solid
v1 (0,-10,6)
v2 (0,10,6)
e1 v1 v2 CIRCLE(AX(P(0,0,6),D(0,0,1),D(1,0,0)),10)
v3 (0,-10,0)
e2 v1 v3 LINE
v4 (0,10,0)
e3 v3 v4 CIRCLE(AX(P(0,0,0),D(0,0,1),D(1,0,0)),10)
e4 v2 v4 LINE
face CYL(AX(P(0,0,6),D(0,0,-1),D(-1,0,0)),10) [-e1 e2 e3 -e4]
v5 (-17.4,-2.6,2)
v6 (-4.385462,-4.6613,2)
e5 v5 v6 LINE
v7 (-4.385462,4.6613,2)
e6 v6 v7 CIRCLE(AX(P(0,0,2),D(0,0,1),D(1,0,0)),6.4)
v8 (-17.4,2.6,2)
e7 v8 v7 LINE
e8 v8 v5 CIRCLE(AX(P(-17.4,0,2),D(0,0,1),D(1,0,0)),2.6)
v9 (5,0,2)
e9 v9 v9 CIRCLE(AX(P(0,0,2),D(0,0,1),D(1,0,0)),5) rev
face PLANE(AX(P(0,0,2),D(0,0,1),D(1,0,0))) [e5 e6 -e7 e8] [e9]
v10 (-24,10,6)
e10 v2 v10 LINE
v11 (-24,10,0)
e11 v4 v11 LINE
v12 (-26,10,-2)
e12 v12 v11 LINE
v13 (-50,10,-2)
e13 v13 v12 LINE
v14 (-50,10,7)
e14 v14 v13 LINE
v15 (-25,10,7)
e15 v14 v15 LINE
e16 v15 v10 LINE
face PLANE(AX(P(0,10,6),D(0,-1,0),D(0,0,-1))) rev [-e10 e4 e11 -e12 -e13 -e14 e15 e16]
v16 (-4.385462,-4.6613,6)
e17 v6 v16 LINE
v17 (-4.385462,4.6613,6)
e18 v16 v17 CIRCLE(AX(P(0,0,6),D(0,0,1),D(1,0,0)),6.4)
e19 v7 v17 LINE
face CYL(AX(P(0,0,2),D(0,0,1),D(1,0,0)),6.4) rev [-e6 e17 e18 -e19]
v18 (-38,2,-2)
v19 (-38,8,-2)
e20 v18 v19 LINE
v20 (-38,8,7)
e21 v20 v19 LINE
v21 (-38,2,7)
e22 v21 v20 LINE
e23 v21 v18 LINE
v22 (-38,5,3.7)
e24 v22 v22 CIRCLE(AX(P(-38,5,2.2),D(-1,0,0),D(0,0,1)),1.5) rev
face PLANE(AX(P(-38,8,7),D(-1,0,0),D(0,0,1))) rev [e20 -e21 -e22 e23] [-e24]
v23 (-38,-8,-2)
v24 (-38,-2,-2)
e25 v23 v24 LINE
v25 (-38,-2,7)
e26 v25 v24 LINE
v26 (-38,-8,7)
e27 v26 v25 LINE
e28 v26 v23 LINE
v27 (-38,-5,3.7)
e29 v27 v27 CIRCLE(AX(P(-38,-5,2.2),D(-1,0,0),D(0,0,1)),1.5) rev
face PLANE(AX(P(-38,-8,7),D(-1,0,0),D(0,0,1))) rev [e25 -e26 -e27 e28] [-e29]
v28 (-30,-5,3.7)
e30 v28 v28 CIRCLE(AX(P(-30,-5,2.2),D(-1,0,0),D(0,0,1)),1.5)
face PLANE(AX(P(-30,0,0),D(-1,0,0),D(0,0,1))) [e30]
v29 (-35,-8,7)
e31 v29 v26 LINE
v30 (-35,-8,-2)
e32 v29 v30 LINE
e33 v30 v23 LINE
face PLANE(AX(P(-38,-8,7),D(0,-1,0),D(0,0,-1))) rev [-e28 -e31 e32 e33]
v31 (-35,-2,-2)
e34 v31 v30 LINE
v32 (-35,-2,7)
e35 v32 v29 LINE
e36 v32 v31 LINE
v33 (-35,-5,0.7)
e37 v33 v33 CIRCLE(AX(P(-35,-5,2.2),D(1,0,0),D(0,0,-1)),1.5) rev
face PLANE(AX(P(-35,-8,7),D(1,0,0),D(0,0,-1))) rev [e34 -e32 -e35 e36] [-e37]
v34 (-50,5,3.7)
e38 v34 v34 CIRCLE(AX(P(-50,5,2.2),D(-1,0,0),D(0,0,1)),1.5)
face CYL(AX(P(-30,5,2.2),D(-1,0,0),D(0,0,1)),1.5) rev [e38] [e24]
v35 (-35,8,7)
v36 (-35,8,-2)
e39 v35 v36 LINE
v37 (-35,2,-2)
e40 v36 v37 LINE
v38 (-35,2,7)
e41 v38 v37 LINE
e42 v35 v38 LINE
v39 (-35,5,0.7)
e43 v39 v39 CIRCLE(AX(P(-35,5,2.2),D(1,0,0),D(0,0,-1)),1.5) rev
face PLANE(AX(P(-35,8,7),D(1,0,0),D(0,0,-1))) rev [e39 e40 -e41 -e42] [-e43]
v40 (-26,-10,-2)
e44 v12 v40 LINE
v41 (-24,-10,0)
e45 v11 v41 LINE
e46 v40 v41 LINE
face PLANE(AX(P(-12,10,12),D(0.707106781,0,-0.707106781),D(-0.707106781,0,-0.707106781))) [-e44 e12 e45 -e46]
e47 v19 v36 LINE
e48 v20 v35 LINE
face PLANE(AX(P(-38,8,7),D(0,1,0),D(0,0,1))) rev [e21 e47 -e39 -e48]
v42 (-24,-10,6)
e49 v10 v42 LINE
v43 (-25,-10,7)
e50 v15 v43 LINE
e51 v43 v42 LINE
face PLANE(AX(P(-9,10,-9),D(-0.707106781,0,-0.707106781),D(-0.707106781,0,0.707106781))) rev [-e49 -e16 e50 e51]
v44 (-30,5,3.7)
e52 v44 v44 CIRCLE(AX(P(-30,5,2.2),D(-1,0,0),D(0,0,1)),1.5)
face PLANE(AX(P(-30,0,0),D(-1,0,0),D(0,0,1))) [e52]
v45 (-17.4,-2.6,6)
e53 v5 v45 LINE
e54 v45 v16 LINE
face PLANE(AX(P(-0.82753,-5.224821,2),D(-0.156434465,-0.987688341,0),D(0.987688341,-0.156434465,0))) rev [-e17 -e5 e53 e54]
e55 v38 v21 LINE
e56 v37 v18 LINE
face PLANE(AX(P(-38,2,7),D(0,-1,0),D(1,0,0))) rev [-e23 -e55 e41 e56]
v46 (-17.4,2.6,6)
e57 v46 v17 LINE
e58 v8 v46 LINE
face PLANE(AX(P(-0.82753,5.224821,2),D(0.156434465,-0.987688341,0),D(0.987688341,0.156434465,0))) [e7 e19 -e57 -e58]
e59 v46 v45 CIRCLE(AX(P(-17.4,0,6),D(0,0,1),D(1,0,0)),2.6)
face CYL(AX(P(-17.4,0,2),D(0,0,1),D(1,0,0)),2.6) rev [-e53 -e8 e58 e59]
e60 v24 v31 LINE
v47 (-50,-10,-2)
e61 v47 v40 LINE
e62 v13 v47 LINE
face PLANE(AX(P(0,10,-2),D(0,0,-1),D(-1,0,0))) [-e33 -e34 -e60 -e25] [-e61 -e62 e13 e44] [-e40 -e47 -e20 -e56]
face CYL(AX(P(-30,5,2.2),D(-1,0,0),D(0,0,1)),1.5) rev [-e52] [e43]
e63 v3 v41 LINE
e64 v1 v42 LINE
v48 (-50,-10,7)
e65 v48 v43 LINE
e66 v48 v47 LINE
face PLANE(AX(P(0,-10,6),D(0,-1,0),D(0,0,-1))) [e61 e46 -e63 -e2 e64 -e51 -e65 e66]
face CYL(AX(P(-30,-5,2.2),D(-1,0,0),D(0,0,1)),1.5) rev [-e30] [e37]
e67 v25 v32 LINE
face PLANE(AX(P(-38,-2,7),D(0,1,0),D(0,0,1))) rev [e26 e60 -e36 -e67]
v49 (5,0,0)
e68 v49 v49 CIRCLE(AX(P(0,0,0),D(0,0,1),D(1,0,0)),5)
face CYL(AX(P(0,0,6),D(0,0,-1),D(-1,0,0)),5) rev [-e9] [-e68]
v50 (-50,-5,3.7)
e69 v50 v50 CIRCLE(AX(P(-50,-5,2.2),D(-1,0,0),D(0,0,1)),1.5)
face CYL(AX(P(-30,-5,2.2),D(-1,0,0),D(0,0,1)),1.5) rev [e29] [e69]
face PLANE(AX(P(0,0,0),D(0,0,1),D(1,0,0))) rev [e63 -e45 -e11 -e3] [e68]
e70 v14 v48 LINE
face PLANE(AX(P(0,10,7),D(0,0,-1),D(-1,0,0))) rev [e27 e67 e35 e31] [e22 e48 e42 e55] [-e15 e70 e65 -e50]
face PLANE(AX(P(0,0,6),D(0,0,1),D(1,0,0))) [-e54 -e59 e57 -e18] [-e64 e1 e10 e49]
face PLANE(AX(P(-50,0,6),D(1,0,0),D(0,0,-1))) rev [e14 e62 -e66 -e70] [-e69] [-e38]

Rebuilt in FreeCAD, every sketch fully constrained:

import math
import FreeCAD as App
import Part
import Sketcher

V = App.Vector
Q = App.Units.Quantity


def add_polygon(sketch, points):
    """Adds a closed chain of lines whose ends are joined by coincident constraints."""
    first, n = sketch.GeometryCount, len(points)
    for a, b in zip(points, points[1:] + points[:1]):
        sketch.addGeometry(Part.LineSegment(App.Vector(*a, 0), App.Vector(*b, 0)), False)
    for i in range(n):
        sketch.addConstraint(Sketcher.Constraint("Coincident", first + i, 2, first + (i + 1) % n, 1))

doc = App.newDocument("Part")
body = doc.addObject("PartDesign::Body", "Body")

# Sketch on XY plane
sketch1 = body.newObject("Sketcher::SketchObject", "Sketch")
sketch1.AttachmentSupport = (doc.getObject("XY_Plane"), [""])
sketch1.MapMode = "FlatFace"
sketch1.addGeometry(Part.LineSegment(V(-50, -10, 0), V(0, -10, 0)), False)
sketch1.addGeometry(Part.ArcOfCircle(Part.Circle(V(0, 0, 0), V(0, 0, 1), 10), math.radians(-90), math.radians(0)), False)
sketch1.addGeometry(Part.ArcOfCircle(Part.Circle(V(0, 0, 0), V(0, 0, 1), 10), math.radians(0), math.radians(90)), False)
sketch1.addGeometry(Part.LineSegment(V(0, 10, 0), V(-50, 10, 0)), False)
sketch1.addGeometry(Part.LineSegment(V(-50, 10, 0), V(-50, -10, 0)), False)
sketch1.addGeometry(Part.ArcOfCircle(Part.Circle(V(0, 0, 0), V(0, 0, 1), 5), math.radians(90), math.radians(180)), False)
sketch1.addGeometry(Part.ArcOfCircle(Part.Circle(V(0, 0, 0), V(0, 0, 1), 5), math.radians(0), math.radians(90)), False)
sketch1.addGeometry(Part.ArcOfCircle(Part.Circle(V(0, 0, 0), V(0, 0, 1), 5), math.radians(-90), math.radians(0)), False)
sketch1.addGeometry(Part.ArcOfCircle(Part.Circle(V(0, 0, 0), V(0, 0, 1), 5), math.radians(180), math.radians(270)), False)
sketch1.addConstraint(Sketcher.Constraint("Tangent", 0, 2, 1, 1))
sketch1.addConstraint(Sketcher.Constraint("Tangent", 1, 2, 2, 1))
sketch1.addConstraint(Sketcher.Constraint("Tangent", 2, 2, 3, 1))
sketch1.addConstraint(Sketcher.Constraint("Coincident", 3, 2, 4, 1))
sketch1.addConstraint(Sketcher.Constraint("Coincident", 4, 2, 0, 1))
sketch1.addConstraint(Sketcher.Constraint("Tangent", 5, 1, 6, 2))
sketch1.addConstraint(Sketcher.Constraint("Tangent", 6, 1, 7, 2))
sketch1.addConstraint(Sketcher.Constraint("Tangent", 7, 1, 8, 2))
sketch1.addConstraint(Sketcher.Constraint("Tangent", 8, 1, 5, 2))
sketch1.addConstraint(Sketcher.Constraint("Horizontal", 0))
sketch1.addConstraint(Sketcher.Constraint("Horizontal", 3))
sketch1.addConstraint(Sketcher.Constraint("Vertical", 4))
sketch1.addConstraint(Sketcher.Constraint("Coincident", 1, 3, -1, 1))
sketch1.addConstraint(Sketcher.Constraint("Coincident", 5, 3, -1, 1))
sketch1.addConstraint(Sketcher.Constraint("Equal", 1, 2))
sketch1.addConstraint(Sketcher.Constraint("Equal", 5, 6))
sketch1.addConstraint(Sketcher.Constraint("PointOnObject", 1, 2, -1))
sketch1.addConstraint(Sketcher.Constraint("PointOnObject", 5, 1, -2))
sketch1.addConstraint(Sketcher.Constraint("PointOnObject", 6, 1, -1))
sketch1.addConstraint(Sketcher.Constraint("PointOnObject", 7, 1, -2))
sketch1.addConstraint(Sketcher.Constraint("PointOnObject", 8, 1, -1))
sketch1.addConstraint(Sketcher.Constraint("Radius", 1, 10.0))
sketch1.addConstraint(Sketcher.Constraint("Radius", 5, 5.0))
sketch1.addConstraint(Sketcher.Constraint("DistanceX", 0, 1, 0, 2, 50.0))
pad1 = body.newObject("PartDesign::Pad", "Pad")
pad1.Profile = sketch1
pad1.Length = 6

# Sketch on XY plane
sketch2 = body.newObject("Sketcher::SketchObject", "Sketch001")
sketch2.AttachmentSupport = (doc.getObject("XY_Plane"), [""])
sketch2.MapMode = "FlatFace"
sketch2.AttachmentOffset = App.Placement(V(0, 0, 6), App.Rotation())
sketch2.addGeometry(Part.LineSegment(V(-4.385462, 4.6613, 0), V(-17.4, 2.6, 0)), False)
sketch2.addGeometry(Part.ArcOfCircle(Part.Circle(V(-17.4, 0, 0), V(0, 0, 1), 2.6), math.radians(90), math.radians(270)), False)
sketch2.addGeometry(Part.LineSegment(V(-17.4, -2.6, 0), V(-4.385462, -4.6613, 0)), False)
sketch2.addGeometry(Part.ArcOfCircle(Part.Circle(V(0, 0, 0), V(0, 0, 1), 6.4), math.radians(-133.253579), math.radians(133.253579)), False)
sketch2.addConstraint(Sketcher.Constraint("Coincident", 0, 2, 1, 1))
sketch2.addConstraint(Sketcher.Constraint("Coincident", 1, 2, 2, 1))
sketch2.addConstraint(Sketcher.Constraint("Coincident", 2, 2, 3, 1))
sketch2.addConstraint(Sketcher.Constraint("Coincident", 3, 2, 0, 1))
sketch2.addConstraint(Sketcher.Constraint("Coincident", 3, 3, -1, 1))
sketch2.addConstraint(Sketcher.Constraint("Symmetric", 0, 2, 1, 2, -1))
sketch2.addConstraint(Sketcher.Constraint("Vertical", 1, 3, 0, 2))
sketch2.addConstraint(Sketcher.Constraint("Vertical", 2, 2, 3, 2))
sketch2.addConstraint(Sketcher.Constraint("Radius", 1, 2.6))
sketch2.addConstraint(Sketcher.Constraint("Radius", 3, 6.4))
sketch2.addConstraint(Sketcher.Constraint("Angle", 0, Q("-171 deg")))
sketch2.addConstraint(Sketcher.Constraint("DistanceX", 1, 3, -1, 1, 17.4))
pocket1 = body.newObject("PartDesign::Pocket", "Pocket")
pocket1.Profile = sketch2
pocket1.Length = 4

# Sketch on YZ plane
sketch3 = body.newObject("Sketcher::SketchObject", "Sketch002")
sketch3.AttachmentSupport = (doc.getObject("YZ_Plane"), [""])
sketch3.MapMode = "FlatFace"
sketch3.AttachmentOffset = App.Placement(V(0, 0, -50), App.Rotation())
sketch3.addGeometry(Part.Circle(V(5, 2.2, 0), V(0, 0, 1), 1.5), False)
sketch3.addGeometry(Part.Circle(V(-5, 2.2, 0), V(0, 0, 1), 1.5), False)
sketch3.addConstraint(Sketcher.Constraint("Equal", 0, 1))
sketch3.addConstraint(Sketcher.Constraint("Symmetric", 0, 3, 1, 3, -2))
sketch3.addConstraint(Sketcher.Constraint("Diameter", 0, 3.0))
sketch3.addConstraint(Sketcher.Constraint("DistanceX", -1, 1, 0, 3, 5.0))
sketch3.addConstraint(Sketcher.Constraint("DistanceY", -1, 1, 0, 3, 2.2))
pocket2 = body.newObject("PartDesign::Pocket", "Pocket001")
pocket2.Profile = sketch3
pocket2.Length = 20
pocket2.Reversed = True

# Sketch on XZ plane
sketch4 = body.newObject("Sketcher::SketchObject", "Sketch003")
sketch4.AttachmentSupport = (doc.getObject("XZ_Plane"), [""])
sketch4.MapMode = "FlatFace"
add_polygon(sketch4, [(-50, 0), (-24, 0), (-26, -2), (-50, -2)])  # lines 0-3
sketch4.addConstraint(Sketcher.Constraint("Horizontal", 0))
sketch4.addConstraint(Sketcher.Constraint("Horizontal", 2))
sketch4.addConstraint(Sketcher.Constraint("Vertical", 3))
sketch4.addConstraint(Sketcher.Constraint("PointOnObject", 0, 2, -1))
sketch4.addConstraint(Sketcher.Constraint("DistanceX", 0, 1, 0, 2, 26.0))
sketch4.addConstraint(Sketcher.Constraint("DistanceX", 2, 2, 2, 1, 24.0))
sketch4.addConstraint(Sketcher.Constraint("DistanceY", 3, 1, 3, 2, 2.0))
sketch4.addConstraint(Sketcher.Constraint("DistanceX", 0, 2, -1, 1, 24.0))
pad2 = body.newObject("PartDesign::Pad", "Pad001")
pad2.Profile = sketch4
pad2.Length = 20
pad2.Midplane = True

# Sketch on XZ plane
sketch5 = body.newObject("Sketcher::SketchObject", "Sketch004")
sketch5.AttachmentSupport = (doc.getObject("XZ_Plane"), [""])
sketch5.MapMode = "FlatFace"
add_polygon(sketch5, [(-24, 6), (-50, 6), (-50, 7), (-25, 7)])  # lines 0-3
sketch5.addConstraint(Sketcher.Constraint("Horizontal", 0))
sketch5.addConstraint(Sketcher.Constraint("Vertical", 1))
sketch5.addConstraint(Sketcher.Constraint("Horizontal", 2))
sketch5.addConstraint(Sketcher.Constraint("DistanceX", 0, 2, 0, 1, 26.0))
sketch5.addConstraint(Sketcher.Constraint("DistanceX", 2, 1, 2, 2, 25.0))
sketch5.addConstraint(Sketcher.Constraint("DistanceY", 1, 1, 1, 2, 1.0))
sketch5.addConstraint(Sketcher.Constraint("DistanceX", 0, 2, -1, 1, 50.0))
sketch5.addConstraint(Sketcher.Constraint("DistanceY", -1, 1, 0, 2, 6.0))
pad3 = body.newObject("PartDesign::Pad", "Pad002")
pad3.Profile = sketch5
pad3.Length = 20
pad3.Midplane = True

# Sketch on XY plane
sketch6 = body.newObject("Sketcher::SketchObject", "Sketch005")
sketch6.AttachmentSupport = (doc.getObject("XY_Plane"), [""])
sketch6.MapMode = "FlatFace"
sketch6.AttachmentOffset = App.Placement(V(0, 0, -2), App.Rotation())
add_polygon(sketch6, [(-35, -2), (-35, -8), (-38, -8), (-38, -2)])  # lines 0-3
add_polygon(sketch6, [(-35, 8), (-35, 2), (-38, 2), (-38, 8)])  # lines 4-7
sketch6.addConstraint(Sketcher.Constraint("Vertical", 0))
sketch6.addConstraint(Sketcher.Constraint("Horizontal", 1))
sketch6.addConstraint(Sketcher.Constraint("Vertical", 2))
sketch6.addConstraint(Sketcher.Constraint("Horizontal", 3))
sketch6.addConstraint(Sketcher.Constraint("Vertical", 4))
sketch6.addConstraint(Sketcher.Constraint("Horizontal", 5))
sketch6.addConstraint(Sketcher.Constraint("Vertical", 6))
sketch6.addConstraint(Sketcher.Constraint("Horizontal", 7))
sketch6.addConstraint(Sketcher.Constraint("Symmetric", 3, 2, 4, 2, -1))
sketch6.addConstraint(Sketcher.Constraint("Symmetric", 1, 2, 6, 2, -1))
sketch6.addConstraint(Sketcher.Constraint("DistanceX", 1, 2, 1, 1, 3.0))
sketch6.addConstraint(Sketcher.Constraint("DistanceY", 0, 2, 0, 1, 6.0))
sketch6.addConstraint(Sketcher.Constraint("DistanceX", 0, 2, -1, 1, 35.0))
sketch6.addConstraint(Sketcher.Constraint("DistanceY", 0, 2, -1, 1, 8.0))
pocket3 = body.newObject("PartDesign::Pocket", "Pocket002")
pocket3.Profile = sketch6
pocket3.Type = "ThroughAll"
pocket3.Reversed = True

doc.recompute()
